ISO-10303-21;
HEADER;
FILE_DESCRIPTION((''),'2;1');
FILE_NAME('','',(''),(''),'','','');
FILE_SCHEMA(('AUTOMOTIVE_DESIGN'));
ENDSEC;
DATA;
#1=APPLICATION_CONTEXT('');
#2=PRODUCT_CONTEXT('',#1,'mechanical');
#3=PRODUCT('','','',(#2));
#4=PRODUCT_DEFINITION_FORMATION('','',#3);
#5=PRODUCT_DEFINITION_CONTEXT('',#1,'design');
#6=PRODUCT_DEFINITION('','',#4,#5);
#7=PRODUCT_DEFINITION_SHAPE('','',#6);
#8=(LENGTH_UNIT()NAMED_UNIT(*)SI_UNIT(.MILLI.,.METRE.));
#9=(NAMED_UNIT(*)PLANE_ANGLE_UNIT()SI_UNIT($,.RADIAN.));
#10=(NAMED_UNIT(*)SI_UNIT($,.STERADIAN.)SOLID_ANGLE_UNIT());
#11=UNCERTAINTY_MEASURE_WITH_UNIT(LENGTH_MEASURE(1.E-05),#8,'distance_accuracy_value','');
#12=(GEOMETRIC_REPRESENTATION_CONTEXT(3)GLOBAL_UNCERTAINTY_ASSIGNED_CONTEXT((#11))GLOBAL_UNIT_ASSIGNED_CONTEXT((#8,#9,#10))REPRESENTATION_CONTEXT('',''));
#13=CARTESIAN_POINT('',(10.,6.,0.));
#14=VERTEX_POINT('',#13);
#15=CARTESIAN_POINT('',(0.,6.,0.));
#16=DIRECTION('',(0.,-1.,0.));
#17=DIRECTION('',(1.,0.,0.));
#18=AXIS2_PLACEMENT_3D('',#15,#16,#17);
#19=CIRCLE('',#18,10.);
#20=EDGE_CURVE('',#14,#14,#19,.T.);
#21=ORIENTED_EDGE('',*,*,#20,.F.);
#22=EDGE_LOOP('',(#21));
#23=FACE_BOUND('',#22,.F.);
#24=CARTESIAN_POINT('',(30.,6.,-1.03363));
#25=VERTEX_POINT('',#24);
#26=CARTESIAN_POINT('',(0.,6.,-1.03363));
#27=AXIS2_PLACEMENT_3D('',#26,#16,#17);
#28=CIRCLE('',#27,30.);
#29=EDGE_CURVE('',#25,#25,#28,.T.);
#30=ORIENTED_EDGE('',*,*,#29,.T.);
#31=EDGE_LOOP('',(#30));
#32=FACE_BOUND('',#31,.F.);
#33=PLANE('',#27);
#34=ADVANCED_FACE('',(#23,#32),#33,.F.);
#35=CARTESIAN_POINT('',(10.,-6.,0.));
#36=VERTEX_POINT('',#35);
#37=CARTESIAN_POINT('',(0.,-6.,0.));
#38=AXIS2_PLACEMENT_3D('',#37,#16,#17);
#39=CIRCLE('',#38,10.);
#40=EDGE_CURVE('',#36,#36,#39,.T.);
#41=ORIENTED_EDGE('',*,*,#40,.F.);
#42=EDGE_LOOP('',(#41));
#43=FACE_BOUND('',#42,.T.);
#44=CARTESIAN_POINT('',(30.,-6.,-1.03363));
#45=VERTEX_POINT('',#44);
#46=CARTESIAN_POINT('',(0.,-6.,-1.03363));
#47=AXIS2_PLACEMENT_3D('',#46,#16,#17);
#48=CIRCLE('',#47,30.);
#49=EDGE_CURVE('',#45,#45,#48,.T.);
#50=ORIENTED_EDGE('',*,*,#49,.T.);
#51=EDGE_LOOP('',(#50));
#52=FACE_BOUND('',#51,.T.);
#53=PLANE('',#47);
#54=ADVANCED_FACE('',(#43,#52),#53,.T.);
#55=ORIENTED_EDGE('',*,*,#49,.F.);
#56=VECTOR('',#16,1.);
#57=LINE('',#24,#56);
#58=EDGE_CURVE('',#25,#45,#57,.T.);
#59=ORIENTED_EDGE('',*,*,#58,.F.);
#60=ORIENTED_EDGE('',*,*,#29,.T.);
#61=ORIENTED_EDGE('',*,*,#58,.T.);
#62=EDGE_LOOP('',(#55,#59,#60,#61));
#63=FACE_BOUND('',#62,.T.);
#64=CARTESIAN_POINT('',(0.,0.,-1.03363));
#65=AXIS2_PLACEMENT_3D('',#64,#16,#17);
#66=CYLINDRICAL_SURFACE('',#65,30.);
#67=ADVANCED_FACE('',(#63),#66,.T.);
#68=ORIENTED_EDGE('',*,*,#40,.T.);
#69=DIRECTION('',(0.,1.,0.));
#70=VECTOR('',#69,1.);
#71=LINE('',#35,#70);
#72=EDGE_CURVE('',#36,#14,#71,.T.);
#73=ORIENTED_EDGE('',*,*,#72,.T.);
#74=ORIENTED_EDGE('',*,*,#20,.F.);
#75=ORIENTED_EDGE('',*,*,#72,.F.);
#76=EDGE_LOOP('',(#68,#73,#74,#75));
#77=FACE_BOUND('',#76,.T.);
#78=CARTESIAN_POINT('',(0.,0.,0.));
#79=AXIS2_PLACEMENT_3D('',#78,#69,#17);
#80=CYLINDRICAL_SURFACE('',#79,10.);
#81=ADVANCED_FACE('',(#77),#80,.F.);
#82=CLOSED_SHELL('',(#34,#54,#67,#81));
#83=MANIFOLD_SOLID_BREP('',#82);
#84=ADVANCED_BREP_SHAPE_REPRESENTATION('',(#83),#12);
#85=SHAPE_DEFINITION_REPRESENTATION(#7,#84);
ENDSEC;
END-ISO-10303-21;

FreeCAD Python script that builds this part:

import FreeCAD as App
import Part
import Sketcher

V = App.Vector
Q = App.Units.Quantity

doc = App.newDocument("Part")
body = doc.addObject("PartDesign::Body", "Body")

sketch1 = doc.addObject("Sketcher::SketchObject", "Sketch")
body.addObject(sketch1)
sketch1.AttachmentSupport = (doc.XZ_Plane, [""])
sketch1.MapMode = "FlatFace"
sketch1.addGeometry(Part.Circle(V(0, -1, 0), V(0, 0, 1), 30), False)
sketch1.addGeometry(Part.Circle(V(0, 0, 0), V(0, 0, 1), 10), False)
sketch1.addConstraint(Sketcher.Constraint("Coincident", 1, 3, -1, 1))
sketch1.addConstraint(Sketcher.Constraint("PointOnObject", 0, 3, -2))
sketch1.addConstraint(Sketcher.Constraint("Diameter", 0, Q("60 mm")))
sketch1.addConstraint(Sketcher.Constraint("Diameter", 1, Q("20 mm")))
sketch1.addConstraint(Sketcher.Constraint("DistanceY", 0, 3, -1, 1, Q("1.03363 mm")))
pad1 = doc.addObject("PartDesign::Pad", "Pad")
body.addObject(pad1)
pad1.Profile = sketch1
pad1.Length = 12
pad1.Midplane = True

doc.recompute()
